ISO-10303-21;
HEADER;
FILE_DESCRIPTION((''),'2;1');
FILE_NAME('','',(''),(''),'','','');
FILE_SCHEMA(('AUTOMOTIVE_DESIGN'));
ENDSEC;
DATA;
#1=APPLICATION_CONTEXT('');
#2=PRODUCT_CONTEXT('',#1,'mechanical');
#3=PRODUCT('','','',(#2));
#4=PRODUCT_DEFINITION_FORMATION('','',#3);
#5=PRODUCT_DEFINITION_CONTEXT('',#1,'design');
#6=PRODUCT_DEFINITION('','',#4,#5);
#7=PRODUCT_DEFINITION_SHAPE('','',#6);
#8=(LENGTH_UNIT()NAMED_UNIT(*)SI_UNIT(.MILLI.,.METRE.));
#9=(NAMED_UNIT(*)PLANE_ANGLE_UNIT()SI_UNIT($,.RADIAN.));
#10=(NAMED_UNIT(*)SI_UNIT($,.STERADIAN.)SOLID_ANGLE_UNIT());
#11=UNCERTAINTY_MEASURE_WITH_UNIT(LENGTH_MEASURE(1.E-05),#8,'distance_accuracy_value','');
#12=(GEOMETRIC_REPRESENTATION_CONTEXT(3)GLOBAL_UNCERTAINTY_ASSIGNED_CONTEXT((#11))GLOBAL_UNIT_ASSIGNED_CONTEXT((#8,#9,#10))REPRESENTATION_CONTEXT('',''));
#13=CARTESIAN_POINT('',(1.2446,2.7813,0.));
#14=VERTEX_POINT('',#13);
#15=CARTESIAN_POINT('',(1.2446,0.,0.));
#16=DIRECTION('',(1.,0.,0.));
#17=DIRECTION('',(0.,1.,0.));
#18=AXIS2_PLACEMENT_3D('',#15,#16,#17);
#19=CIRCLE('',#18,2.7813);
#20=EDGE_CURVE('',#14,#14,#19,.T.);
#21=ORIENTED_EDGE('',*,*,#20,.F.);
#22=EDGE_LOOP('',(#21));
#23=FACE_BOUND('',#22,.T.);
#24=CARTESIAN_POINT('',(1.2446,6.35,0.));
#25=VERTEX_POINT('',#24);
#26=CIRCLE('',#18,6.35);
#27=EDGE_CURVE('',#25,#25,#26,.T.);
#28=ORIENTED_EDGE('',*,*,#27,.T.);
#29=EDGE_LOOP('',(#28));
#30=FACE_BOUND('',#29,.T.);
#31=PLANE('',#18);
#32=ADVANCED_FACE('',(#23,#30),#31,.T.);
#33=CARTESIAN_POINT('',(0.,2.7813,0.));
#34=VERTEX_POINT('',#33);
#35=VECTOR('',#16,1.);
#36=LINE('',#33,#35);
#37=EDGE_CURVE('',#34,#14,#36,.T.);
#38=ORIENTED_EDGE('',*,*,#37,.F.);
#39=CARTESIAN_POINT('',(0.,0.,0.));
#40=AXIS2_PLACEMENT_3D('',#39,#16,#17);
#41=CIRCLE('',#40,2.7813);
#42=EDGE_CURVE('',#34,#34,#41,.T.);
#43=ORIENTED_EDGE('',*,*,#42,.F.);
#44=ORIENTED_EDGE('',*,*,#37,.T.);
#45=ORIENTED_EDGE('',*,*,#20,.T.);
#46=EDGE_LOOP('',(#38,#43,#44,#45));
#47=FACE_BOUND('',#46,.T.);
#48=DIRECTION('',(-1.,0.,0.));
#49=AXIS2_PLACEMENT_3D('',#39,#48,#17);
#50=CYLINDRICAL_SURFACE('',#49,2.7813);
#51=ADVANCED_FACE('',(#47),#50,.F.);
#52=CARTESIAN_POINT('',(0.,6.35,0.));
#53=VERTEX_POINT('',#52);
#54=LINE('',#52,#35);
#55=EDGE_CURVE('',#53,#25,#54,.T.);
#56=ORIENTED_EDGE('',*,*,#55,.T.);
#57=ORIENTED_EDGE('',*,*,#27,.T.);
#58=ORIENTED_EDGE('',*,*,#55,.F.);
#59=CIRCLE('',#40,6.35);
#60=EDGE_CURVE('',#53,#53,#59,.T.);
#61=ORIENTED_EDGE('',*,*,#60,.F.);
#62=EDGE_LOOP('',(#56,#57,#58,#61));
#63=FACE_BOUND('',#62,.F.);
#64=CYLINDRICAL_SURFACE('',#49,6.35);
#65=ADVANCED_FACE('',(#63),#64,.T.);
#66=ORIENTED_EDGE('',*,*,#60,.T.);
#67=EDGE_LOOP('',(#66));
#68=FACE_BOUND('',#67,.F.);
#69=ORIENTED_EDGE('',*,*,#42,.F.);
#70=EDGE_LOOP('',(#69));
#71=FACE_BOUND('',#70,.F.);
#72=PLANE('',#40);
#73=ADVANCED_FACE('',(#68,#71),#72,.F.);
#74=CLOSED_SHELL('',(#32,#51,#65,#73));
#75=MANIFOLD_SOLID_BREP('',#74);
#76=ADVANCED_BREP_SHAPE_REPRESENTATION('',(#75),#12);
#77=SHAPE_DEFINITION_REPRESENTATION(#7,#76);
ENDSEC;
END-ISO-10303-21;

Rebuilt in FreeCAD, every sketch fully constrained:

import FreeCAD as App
import Part
import Sketcher
from FreeCAD import Vector
Q = App.Units.Quantity

doc = App.newDocument("Part")
body = doc.addObject("PartDesign::Body", "Body")

# Sketch on YZ plane
sketch1 = body.newObject("Sketcher::SketchObject", "Sketch")
sketch1.AttachmentSupport = (doc.getObject("YZ_Plane"), [""])
sketch1.MapMode = "FlatFace"
sketch1.addGeometry(Part.Circle(Vector(0, 0, 0), Vector(0, 0, 1), 6.3), False)
sketch1.addGeometry(Part.Circle(Vector(0, 0, 0), Vector(0, 0, 1), 2.8), False)
sketch1.addConstraint(Sketcher.Constraint("Coincident", 0, 3, -1, 1))
sketch1.addConstraint(Sketcher.Constraint("Coincident", 1, 3, -1, 1))
sketch1.addConstraint(Sketcher.Constraint("Diameter", 0, Q("0.5 in")))
sketch1.addConstraint(Sketcher.Constraint("Diameter", 1, Q("0.219 in")))
pad1 = body.newObject("PartDesign::Pad", "Pad")
pad1.Profile = sketch1
pad1.Length = Q("0.049 in")

doc.recompute()
